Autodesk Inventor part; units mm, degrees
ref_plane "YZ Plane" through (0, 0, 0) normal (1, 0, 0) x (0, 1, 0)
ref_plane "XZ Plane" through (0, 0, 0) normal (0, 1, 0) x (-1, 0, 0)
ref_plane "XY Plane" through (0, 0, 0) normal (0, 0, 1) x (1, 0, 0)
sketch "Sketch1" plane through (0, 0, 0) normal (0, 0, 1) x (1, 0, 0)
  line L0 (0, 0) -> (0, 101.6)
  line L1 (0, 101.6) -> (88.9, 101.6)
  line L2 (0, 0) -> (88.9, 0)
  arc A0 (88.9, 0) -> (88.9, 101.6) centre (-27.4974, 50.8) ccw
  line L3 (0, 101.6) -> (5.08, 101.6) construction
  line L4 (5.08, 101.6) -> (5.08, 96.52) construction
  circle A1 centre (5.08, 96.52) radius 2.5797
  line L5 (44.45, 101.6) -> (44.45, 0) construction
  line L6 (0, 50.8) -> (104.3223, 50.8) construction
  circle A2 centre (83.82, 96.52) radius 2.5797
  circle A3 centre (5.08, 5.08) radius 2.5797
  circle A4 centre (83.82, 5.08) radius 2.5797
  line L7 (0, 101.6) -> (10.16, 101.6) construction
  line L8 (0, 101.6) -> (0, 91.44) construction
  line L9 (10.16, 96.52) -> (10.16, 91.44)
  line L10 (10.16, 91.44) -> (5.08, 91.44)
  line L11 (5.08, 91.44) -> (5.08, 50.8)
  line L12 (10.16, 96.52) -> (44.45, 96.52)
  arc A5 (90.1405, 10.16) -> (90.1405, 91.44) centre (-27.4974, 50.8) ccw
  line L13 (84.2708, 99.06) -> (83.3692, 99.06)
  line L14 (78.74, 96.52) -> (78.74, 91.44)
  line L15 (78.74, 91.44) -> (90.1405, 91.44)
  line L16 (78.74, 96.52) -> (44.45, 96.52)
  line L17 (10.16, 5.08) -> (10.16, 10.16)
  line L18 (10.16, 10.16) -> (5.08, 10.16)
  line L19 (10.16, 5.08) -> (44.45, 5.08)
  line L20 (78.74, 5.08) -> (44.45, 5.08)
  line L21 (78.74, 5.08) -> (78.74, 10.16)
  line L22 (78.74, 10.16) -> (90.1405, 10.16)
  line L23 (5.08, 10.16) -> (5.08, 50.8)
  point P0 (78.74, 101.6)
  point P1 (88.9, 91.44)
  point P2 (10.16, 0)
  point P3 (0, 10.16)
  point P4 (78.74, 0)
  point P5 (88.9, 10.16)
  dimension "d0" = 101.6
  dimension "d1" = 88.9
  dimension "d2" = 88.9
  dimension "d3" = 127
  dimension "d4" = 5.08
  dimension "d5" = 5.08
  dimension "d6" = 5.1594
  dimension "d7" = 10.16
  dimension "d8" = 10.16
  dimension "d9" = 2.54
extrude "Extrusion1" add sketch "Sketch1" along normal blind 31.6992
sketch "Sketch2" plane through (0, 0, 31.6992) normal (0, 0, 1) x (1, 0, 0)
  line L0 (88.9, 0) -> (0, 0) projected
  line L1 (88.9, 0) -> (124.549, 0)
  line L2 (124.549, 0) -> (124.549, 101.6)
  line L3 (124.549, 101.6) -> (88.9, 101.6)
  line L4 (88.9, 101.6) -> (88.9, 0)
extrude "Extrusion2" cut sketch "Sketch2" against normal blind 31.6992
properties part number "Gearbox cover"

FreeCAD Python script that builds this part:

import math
import FreeCAD as App
import Part
import Sketcher
from FreeCAD import Vector
Q = App.Units.Quantity


def add_polygon(sketch, points):
    """Adds a closed chain of lines whose ends are joined by coincident constraints."""
    first, n = sketch.GeometryCount, len(points)
    for a, b in zip(points, points[1:] + points[:1]):
        sketch.addGeometry(Part.LineSegment(App.Vector(*a, 0), App.Vector(*b, 0)), False)
    for i in range(n):
        sketch.addConstraint(Sketcher.Constraint("Coincident", first + i, 2, first + (i + 1) % n, 1))

doc = App.newDocument("Part")
body = doc.addObject("PartDesign::Body", "Body")

sketch1 = body.newObject("Sketcher::SketchObject", "Sketch")
sketch1.AttachmentSupport = (doc.getObject("XY_Plane"), [""])
sketch1.MapMode = "FlatFace"
sketch1.addGeometry(Part.LineSegment(Vector(0, 101.6, 0), Vector(0, 0, 0)), False)
sketch1.addGeometry(Part.LineSegment(Vector(0, 0, 0), Vector(88.9, 0, 0)), False)
sketch1.addGeometry(Part.ArcOfCircle(Part.Circle(Vector(-27.4974, 50.8, 0), Vector(0, 0, 1), 126.999979), math.radians(-23.578183), math.radians(23.578183)), False)
sketch1.addGeometry(Part.LineSegment(Vector(88.9, 101.6, 0), Vector(0, 101.6, 0)), False)
sketch1.addGeometry(Part.Circle(Vector(5.08, 5.08, 0), Vector(0, 0, 1), 2.5797), False)
sketch1.addGeometry(Part.Circle(Vector(83.82, 5.08, 0), Vector(0, 0, 1), 2.5797), False)
sketch1.addGeometry(Part.LineSegment(Vector(10.16, 91.44, 0), Vector(10.16, 96.52, 0)), False)
sketch1.addGeometry(Part.LineSegment(Vector(10.16, 96.52, 0), Vector(78.74, 96.52, 0)), False)
sketch1.addGeometry(Part.LineSegment(Vector(78.74, 96.52, 0), Vector(78.74, 91.44, 0)), False)
sketch1.addGeometry(Part.LineSegment(Vector(78.74, 91.44, 0), Vector(90.1405, 91.44, 0)), False)
sketch1.addGeometry(Part.ArcOfCircle(Part.Circle(Vector(-27.4974, 50.8, 0), Vector(0, 0, 1), 124.459974), math.radians(-19.058337), math.radians(19.058337)), False)
sketch1.addGeometry(Part.LineSegment(Vector(90.1405, 10.16, 0), Vector(78.74, 10.16, 0)), False)
sketch1.addGeometry(Part.LineSegment(Vector(78.74, 10.16, 0), Vector(78.74, 5.08, 0)), False)
sketch1.addGeometry(Part.LineSegment(Vector(78.74, 5.08, 0), Vector(10.16, 5.08, 0)), False)
sketch1.addGeometry(Part.LineSegment(Vector(10.16, 5.08, 0), Vector(10.16, 10.16, 0)), False)
sketch1.addGeometry(Part.LineSegment(Vector(10.16, 10.16, 0), Vector(5.08, 10.16, 0)), False)
sketch1.addGeometry(Part.LineSegment(Vector(5.08, 10.16, 0), Vector(5.08, 91.44, 0)), False)
sketch1.addGeometry(Part.LineSegment(Vector(5.08, 91.44, 0), Vector(10.16, 91.44, 0)), False)
sketch1.addGeometry(Part.Circle(Vector(5.08, 96.52, 0), Vector(0, 0, 1), 2.5797), False)
sketch1.addGeometry(Part.Circle(Vector(83.82, 96.52, 0), Vector(0, 0, 1), 2.5797), False)
sketch1.addConstraint(Sketcher.Constraint("Coincident", 0, 2, 1, 1))
sketch1.addConstraint(Sketcher.Constraint("Coincident", 1, 2, 2, 1))
sketch1.addConstraint(Sketcher.Constraint("Coincident", 2, 2, 3, 1))
sketch1.addConstraint(Sketcher.Constraint("Coincident", 3, 2, 0, 1))
sketch1.addConstraint(Sketcher.Constraint("Coincident", 6, 2, 7, 1))
sketch1.addConstraint(Sketcher.Constraint("Coincident", 7, 2, 8, 1))
sketch1.addConstraint(Sketcher.Constraint("Coincident", 8, 2, 9, 1))
sketch1.addConstraint(Sketcher.Constraint("Coincident", 9, 2, 10, 2))
sketch1.addConstraint(Sketcher.Constraint("Coincident", 10, 1, 11, 1))
sketch1.addConstraint(Sketcher.Constraint("Coincident", 11, 2, 12, 1))
sketch1.addConstraint(Sketcher.Constraint("Coincident", 12, 2, 13, 1))
sketch1.addConstraint(Sketcher.Constraint("Coincident", 13, 2, 14, 1))
sketch1.addConstraint(Sketcher.Constraint("Coincident", 14, 2, 15, 1))
sketch1.addConstraint(Sketcher.Constraint("Coincident", 15, 2, 16, 1))
sketch1.addConstraint(Sketcher.Constraint("Coincident", 16, 2, 17, 1))
sketch1.addConstraint(Sketcher.Constraint("Coincident", 17, 2, 6, 1))
sketch1.addConstraint(Sketcher.Constraint("Vertical", 0))
sketch1.addConstraint(Sketcher.Constraint("Horizontal", 1))
sketch1.addConstraint(Sketcher.Constraint("Horizontal", 3))
sketch1.addConstraint(Sketcher.Constraint("Vertical", 6))
sketch1.addConstraint(Sketcher.Constraint("Horizontal", 7))
sketch1.addConstraint(Sketcher.Constraint("Vertical", 8))
sketch1.addConstraint(Sketcher.Constraint("Horizontal", 9))
sketch1.addConstraint(Sketcher.Constraint("Horizontal", 11))
sketch1.addConstraint(Sketcher.Constraint("Vertical", 12))
sketch1.addConstraint(Sketcher.Constraint("Horizontal", 13))
sketch1.addConstraint(Sketcher.Constraint("Vertical", 14))
sketch1.addConstraint(Sketcher.Constraint("Horizontal", 15))
sketch1.addConstraint(Sketcher.Constraint("Vertical", 16))
sketch1.addConstraint(Sketcher.Constraint("Horizontal", 17))
sketch1.addConstraint(Sketcher.Constraint("Coincident", 0, 2, -1, 1))
sketch1.addConstraint(Sketcher.Constraint("Coincident", 10, 3, 2, 3))
sketch1.addConstraint(Sketcher.Constraint("Equal", 4, 5))
sketch1.addConstraint(Sketcher.Constraint("Equal", 5, 18))
sketch1.addConstraint(Sketcher.Constraint("Equal", 18, 19))
sketch1.addConstraint(Sketcher.Constraint("Horizontal", 4, 3, 5, 3))
sketch1.addConstraint(Sketcher.Constraint("Horizontal", 18, 3, 19, 3))
sketch1.addConstraint(Sketcher.Constraint("Horizontal", 19, 3, 6, 2))
sketch1.addConstraint(Sketcher.Constraint("Horizontal", 5, 3, 12, 2))
sketch1.addConstraint(Sketcher.Constraint("Horizontal", 11, 2, 14, 2))
sketch1.addConstraint(Sketcher.Constraint("Horizontal", 9, 2, 16, 2))
sketch1.addConstraint(Sketcher.Constraint("Vertical", 4, 3, 18, 3))
sketch1.addConstraint(Sketcher.Constraint("Vertical", 5, 3, 19, 3))
sketch1.addConstraint(Sketcher.Constraint("Vertical", 1, 2, 2, 2))
sketch1.addConstraint(Sketcher.Constraint("Vertical", 9, 2, 10, 1))
sketch1.addConstraint(Sketcher.Constraint("Vertical", 8, 2, 11, 2))
sketch1.addConstraint(Sketcher.Constraint("Vertical", 6, 2, 13, 2))
sketch1.addConstraint(Sketcher.Constraint("Vertical", 18, 3, 15, 2))
sketch1.addConstraint(Sketcher.Constraint("Equal", 17, 6))
sketch1.addConstraint(Sketcher.Constraint("Equal", 8, 12))
sketch1.addConstraint(Sketcher.Constraint("Radius", 2, Q("5 in")))
sketch1.addConstraint(Sketcher.Constraint("DistanceY", 0, 2, 0, 1, Q("4 in")))
sketch1.addConstraint(Sketcher.Constraint("Diameter", 4, Q("0.203126 in")))
sketch1.addConstraint(Sketcher.Constraint("DistanceX", 1, 1, 1, 2, Q("3.5 in")))
sketch1.addConstraint(Sketcher.Constraint("DistanceX", 15, 2, 15, 1, Q("0.2 in")))
sketch1.addConstraint(Sketcher.Constraint("DistanceX", -1, 1, 4, 3, Q("0.2 in")))
sketch1.addConstraint(Sketcher.Constraint("DistanceY", -1, 1, 4, 3, Q("0.2 in")))
sketch1.addConstraint(Sketcher.Constraint("Radius", 10, Q("4.9 in")))
sketch1.addConstraint(Sketcher.Constraint("DistanceX", 5, 3, 1, 2, Q("0.2 in")))
sketch1.addConstraint(Sketcher.Constraint("DistanceX", 7, 2, 19, 3, Q("0.2 in")))
pad1 = body.newObject("PartDesign::Pad", "Pad")
pad1.Profile = sketch1
pad1.Length = Q("1.248 in")

sketch2 = body.newObject("Sketcher::SketchObject", "Sketch001")
sketch2.AttachmentSupport = (doc.getObject("XY_Plane"), [""])
sketch2.MapMode = "FlatFace"
sketch2.AttachmentOffset = App.Placement(Vector(0, 0, 1.248 * 25.4), App.Rotation())
add_polygon(sketch2, [(88.9, 101.6), (88.9, 0), (124.549, 0), (124.549, 101.6)])
sketch2.addConstraint(Sketcher.Constraint("Vertical", 0))
sketch2.addConstraint(Sketcher.Constraint("Horizontal", 1))
sketch2.addConstraint(Sketcher.Constraint("Vertical", 2))
sketch2.addConstraint(Sketcher.Constraint("Horizontal", 3))
sketch2.addConstraint(Sketcher.Constraint("PointOnObject", 0, 2, -1))
sketch2.addConstraint(Sketcher.Constraint("DistanceY", 0, 2, 0, 1, Q("4 in")))
sketch2.addConstraint(Sketcher.Constraint("DistanceX", -1, 1, 0, 2, Q("3.5 in")))
sketch2.addConstraint(Sketcher.Constraint("DistanceX", 1, 1, 1, 2, Q("1.4035 in")))
pocket1 = body.newObject("PartDesign::Pocket", "Pocket")
pocket1.Profile = sketch2
pocket1.Length = Q("1.248 in")

doc.recompute()
